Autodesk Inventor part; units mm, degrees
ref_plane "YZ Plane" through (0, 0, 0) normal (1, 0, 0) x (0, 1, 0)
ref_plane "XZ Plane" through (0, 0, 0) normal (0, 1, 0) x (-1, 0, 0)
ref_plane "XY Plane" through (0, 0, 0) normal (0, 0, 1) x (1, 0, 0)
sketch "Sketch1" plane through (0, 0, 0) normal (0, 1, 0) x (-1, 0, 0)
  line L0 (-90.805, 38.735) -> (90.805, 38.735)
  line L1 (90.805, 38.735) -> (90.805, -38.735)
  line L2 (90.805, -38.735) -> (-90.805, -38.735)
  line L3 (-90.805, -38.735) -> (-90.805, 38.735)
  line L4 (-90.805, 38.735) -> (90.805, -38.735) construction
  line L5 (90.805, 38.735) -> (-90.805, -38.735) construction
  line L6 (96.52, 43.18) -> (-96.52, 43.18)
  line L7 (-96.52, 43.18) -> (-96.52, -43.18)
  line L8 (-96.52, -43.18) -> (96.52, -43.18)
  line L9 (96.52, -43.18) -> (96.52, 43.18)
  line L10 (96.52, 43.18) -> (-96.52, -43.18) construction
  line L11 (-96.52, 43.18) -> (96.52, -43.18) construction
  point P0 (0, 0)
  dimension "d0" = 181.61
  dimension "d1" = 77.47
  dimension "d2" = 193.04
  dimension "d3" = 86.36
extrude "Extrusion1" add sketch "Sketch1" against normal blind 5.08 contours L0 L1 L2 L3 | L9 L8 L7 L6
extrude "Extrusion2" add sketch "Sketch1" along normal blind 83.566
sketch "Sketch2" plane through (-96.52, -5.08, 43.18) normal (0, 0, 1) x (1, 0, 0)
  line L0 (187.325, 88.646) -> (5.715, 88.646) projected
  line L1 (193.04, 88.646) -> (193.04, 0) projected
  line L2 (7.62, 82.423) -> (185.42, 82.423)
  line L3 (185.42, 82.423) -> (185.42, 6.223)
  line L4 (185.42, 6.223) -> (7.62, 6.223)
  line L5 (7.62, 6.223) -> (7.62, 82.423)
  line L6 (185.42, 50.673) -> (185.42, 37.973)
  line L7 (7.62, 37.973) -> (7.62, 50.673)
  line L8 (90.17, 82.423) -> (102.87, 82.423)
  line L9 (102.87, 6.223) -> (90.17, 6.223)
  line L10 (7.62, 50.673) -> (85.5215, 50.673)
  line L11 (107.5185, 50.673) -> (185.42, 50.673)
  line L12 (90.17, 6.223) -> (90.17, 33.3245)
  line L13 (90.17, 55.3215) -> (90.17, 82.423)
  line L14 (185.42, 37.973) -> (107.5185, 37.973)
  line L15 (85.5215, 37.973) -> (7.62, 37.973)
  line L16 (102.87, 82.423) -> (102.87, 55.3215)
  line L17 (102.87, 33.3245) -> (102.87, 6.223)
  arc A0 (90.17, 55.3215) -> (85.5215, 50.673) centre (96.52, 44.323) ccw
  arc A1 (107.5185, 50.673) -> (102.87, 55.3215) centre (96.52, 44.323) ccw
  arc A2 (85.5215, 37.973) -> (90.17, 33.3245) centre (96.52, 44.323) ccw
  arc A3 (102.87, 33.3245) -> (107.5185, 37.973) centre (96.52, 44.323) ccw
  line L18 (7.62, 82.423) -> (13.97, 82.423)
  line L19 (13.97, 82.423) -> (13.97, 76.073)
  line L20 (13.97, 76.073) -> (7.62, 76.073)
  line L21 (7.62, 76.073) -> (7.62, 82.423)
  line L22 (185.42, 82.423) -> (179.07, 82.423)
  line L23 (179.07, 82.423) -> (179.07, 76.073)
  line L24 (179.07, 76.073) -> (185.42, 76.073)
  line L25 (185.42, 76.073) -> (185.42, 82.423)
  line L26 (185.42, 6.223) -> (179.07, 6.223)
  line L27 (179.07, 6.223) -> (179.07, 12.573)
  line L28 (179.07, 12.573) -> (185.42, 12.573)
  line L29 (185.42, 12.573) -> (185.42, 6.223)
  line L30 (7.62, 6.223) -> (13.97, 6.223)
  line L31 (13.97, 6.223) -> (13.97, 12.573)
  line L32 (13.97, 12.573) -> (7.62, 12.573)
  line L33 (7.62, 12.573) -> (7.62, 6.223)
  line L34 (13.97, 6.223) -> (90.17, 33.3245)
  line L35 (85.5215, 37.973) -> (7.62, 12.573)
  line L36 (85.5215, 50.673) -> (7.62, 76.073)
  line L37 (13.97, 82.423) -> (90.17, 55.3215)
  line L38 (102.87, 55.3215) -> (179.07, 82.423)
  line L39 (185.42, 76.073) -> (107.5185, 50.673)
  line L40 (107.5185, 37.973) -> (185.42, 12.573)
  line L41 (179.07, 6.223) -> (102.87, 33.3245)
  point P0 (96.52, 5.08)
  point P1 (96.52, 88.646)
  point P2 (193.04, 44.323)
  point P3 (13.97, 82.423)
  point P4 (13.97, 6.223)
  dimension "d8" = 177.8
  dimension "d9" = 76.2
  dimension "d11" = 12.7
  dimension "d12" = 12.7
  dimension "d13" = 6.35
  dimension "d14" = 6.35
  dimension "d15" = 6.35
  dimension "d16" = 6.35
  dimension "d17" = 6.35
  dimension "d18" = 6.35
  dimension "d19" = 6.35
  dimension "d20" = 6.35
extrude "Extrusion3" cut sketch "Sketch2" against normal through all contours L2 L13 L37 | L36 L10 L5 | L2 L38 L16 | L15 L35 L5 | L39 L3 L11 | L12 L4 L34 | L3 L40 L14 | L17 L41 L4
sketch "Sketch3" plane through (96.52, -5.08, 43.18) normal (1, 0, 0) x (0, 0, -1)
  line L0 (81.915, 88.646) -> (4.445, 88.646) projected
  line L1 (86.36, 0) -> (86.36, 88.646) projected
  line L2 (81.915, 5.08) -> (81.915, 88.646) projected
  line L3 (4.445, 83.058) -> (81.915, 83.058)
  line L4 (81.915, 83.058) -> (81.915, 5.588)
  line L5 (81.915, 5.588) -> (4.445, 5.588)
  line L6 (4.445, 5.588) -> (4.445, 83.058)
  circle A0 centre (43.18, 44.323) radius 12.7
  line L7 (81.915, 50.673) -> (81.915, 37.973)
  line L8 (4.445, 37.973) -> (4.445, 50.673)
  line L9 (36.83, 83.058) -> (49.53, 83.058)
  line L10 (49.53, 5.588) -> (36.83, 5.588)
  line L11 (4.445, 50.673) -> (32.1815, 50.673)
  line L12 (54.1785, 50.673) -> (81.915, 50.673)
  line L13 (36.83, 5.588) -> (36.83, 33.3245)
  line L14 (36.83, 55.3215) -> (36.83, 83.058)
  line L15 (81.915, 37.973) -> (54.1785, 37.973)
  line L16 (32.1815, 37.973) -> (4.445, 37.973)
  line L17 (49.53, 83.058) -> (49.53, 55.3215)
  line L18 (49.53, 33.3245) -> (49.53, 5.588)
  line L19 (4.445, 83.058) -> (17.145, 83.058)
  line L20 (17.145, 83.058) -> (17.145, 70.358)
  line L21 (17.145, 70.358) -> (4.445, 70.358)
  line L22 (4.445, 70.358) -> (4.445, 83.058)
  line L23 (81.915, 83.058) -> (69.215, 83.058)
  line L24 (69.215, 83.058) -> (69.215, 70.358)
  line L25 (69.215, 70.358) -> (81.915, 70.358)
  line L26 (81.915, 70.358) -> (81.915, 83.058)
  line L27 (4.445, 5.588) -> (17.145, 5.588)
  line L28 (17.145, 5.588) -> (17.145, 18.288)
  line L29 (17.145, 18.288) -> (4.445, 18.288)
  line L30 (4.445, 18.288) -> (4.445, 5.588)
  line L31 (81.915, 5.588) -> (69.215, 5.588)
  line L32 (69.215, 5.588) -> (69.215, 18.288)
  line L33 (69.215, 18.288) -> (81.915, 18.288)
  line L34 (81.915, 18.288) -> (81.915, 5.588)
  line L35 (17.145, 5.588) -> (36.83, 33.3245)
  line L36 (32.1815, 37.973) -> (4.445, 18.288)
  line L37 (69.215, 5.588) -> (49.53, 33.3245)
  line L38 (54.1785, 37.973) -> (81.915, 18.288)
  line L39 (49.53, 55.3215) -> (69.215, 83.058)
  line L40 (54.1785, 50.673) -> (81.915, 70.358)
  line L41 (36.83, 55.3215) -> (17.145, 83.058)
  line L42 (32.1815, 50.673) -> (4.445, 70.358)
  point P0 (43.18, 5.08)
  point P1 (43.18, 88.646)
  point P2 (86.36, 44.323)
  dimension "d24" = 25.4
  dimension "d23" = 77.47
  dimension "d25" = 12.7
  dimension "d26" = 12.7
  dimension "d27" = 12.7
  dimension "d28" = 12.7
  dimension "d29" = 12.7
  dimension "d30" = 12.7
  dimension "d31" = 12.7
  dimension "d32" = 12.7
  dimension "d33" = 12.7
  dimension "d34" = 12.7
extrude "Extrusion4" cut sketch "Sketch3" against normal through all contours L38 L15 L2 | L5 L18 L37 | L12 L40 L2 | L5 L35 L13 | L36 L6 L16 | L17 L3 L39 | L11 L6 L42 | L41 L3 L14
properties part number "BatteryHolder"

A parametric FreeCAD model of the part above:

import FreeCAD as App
import Part
import Sketcher
from FreeCAD import Vector
Q = App.Units.Quantity

doc = App.newDocument("Part")
body = doc.addObject("PartDesign::Body", "Body")

# Sketch on XZ plane
sketch1 = body.newObject("Sketcher::SketchObject", "Sketch")
sketch1.AttachmentSupport = (doc.getObject("XZ_Plane"), [""])
sketch1.MapMode = "FlatFace"
sketch1.addGeometry(Part.LineSegment(Vector(-96.52, -43.18, 0), Vector(-96.52, 43.18, 0)), False)
sketch1.addGeometry(Part.LineSegment(Vector(-96.52, 43.18, 0), Vector(96.52, 43.18, 0)), False)
sketch1.addGeometry(Part.LineSegment(Vector(96.52, 43.18, 0), Vector(96.52, -43.18, 0)), False)
sketch1.addGeometry(Part.LineSegment(Vector(96.52, -43.18, 0), Vector(-96.52, -43.18, 0)), False)
sketch1.addConstraint(Sketcher.Constraint("Coincident", 0, 2, 1, 1))
sketch1.addConstraint(Sketcher.Constraint("Coincident", 1, 2, 2, 1))
sketch1.addConstraint(Sketcher.Constraint("Coincident", 2, 2, 3, 1))
sketch1.addConstraint(Sketcher.Constraint("Coincident", 3, 2, 0, 1))
sketch1.addConstraint(Sketcher.Constraint("Vertical", 0))
sketch1.addConstraint(Sketcher.Constraint("Horizontal", 1))
sketch1.addConstraint(Sketcher.Constraint("Vertical", 2))
sketch1.addConstraint(Sketcher.Constraint("Horizontal", 3))
sketch1.addConstraint(Sketcher.Constraint("Symmetric", 0, 2, 2, 2, -1, 1))
sketch1.addConstraint(Sketcher.Constraint("DistanceX", 1, 1, 1, 2, Q("7.6 in")))
sketch1.addConstraint(Sketcher.Constraint("DistanceY", 0, 1, 0, 2, Q("3.4 in")))
pad1 = body.newObject("PartDesign::Pad", "Pad")
pad1.Profile = sketch1
pad1.Length = Q("0.2 in")

# Sketch on XZ plane
sketch2 = body.newObject("Sketcher::SketchObject", "Sketch001")
sketch2.AttachmentSupport = (doc.getObject("XZ_Plane"), [""])
sketch2.MapMode = "FlatFace"
sketch2.addGeometry(Part.LineSegment(Vector(-96.52, -43.18, 0), Vector(-96.52, 43.18, 0)), False)
sketch2.addGeometry(Part.LineSegment(Vector(-96.52, 43.18, 0), Vector(96.52, 43.18, 0)), False)
sketch2.addGeometry(Part.LineSegment(Vector(96.52, 43.18, 0), Vector(96.52, -43.18, 0)), False)
sketch2.addGeometry(Part.LineSegment(Vector(96.52, -43.18, 0), Vector(-96.52, -43.18, 0)), False)
sketch2.addGeometry(Part.LineSegment(Vector(90.805, -38.735, 0), Vector(90.805, 38.735, 0)), False)
sketch2.addGeometry(Part.LineSegment(Vector(90.805, 38.735, 0), Vector(-90.805, 38.735, 0)), False)
sketch2.addGeometry(Part.LineSegment(Vector(-90.805, 38.735, 0), Vector(-90.805, -38.735, 0)), False)
sketch2.addGeometry(Part.LineSegment(Vector(-90.805, -38.735, 0), Vector(90.805, -38.735, 0)), False)
sketch2.addConstraint(Sketcher.Constraint("Coincident", 0, 2, 1, 1))
sketch2.addConstraint(Sketcher.Constraint("Coincident", 1, 2, 2, 1))
sketch2.addConstraint(Sketcher.Constraint("Coincident", 2, 2, 3, 1))
sketch2.addConstraint(Sketcher.Constraint("Coincident", 3, 2, 0, 1))
sketch2.addConstraint(Sketcher.Constraint("Coincident", 4, 2, 5, 1))
sketch2.addConstraint(Sketcher.Constraint("Coincident", 5, 2, 6, 1))
sketch2.addConstraint(Sketcher.Constraint("Coincident", 6, 2, 7, 1))
sketch2.addConstraint(Sketcher.Constraint("Coincident", 7, 2, 4, 1))
sketch2.addConstraint(Sketcher.Constraint("Vertical", 0))
sketch2.addConstraint(Sketcher.Constraint("Horizontal", 1))
sketch2.addConstraint(Sketcher.Constraint("Vertical", 2))
sketch2.addConstraint(Sketcher.Constraint("Horizontal", 3))
sketch2.addConstraint(Sketcher.Constraint("Vertical", 4))
sketch2.addConstraint(Sketcher.Constraint("Horizontal", 5))
sketch2.addConstraint(Sketcher.Constraint("Vertical", 6))
sketch2.addConstraint(Sketcher.Constraint("Horizontal", 7))
sketch2.addConstraint(Sketcher.Constraint("Symmetric", 0, 2, 2, 2, -1, 1))
sketch2.addConstraint(Sketcher.Constraint("Symmetric", 4, 2, 6, 2, -1, 1))
sketch2.addConstraint(Sketcher.Constraint("DistanceX", 1, 1, 1, 2, Q("7.6 in")))
sketch2.addConstraint(Sketcher.Constraint("DistanceY", 0, 1, 0, 2, Q("3.4 in")))
sketch2.addConstraint(Sketcher.Constraint("DistanceX", 5, 2, 5, 1, Q("7.15 in")))
sketch2.addConstraint(Sketcher.Constraint("DistanceY", 4, 1, 4, 2, Q("3.05 in")))
pad2 = body.newObject("PartDesign::Pad", "Pad001")
pad2.Profile = sketch2
pad2.Length = Q("3.29 in")
pad2.Reversed = True

# Sketch on XY plane
sketch3 = body.newObject("Sketcher::SketchObject", "Sketch002")
sketch3.AttachmentSupport = (doc.getObject("XY_Plane"), [""])
sketch3.MapMode = "FlatFace"
sketch3.AttachmentOffset = App.Placement(Vector(0, 0, 1.7 * 25.4), App.Rotation())
sketch3.addGeometry(Part.LineSegment(Vector(-6.35, 77.343, 0), Vector(-82.55, 77.343, 0)), False)
sketch3.addGeometry(Part.LineSegment(Vector(-82.55, 77.343, 0), Vector(-6.35, 50.2415, 0)), False)
sketch3.addGeometry(Part.LineSegment(Vector(-6.35, 50.2415, 0), Vector(-6.35, 77.343, 0)), False)
sketch3.addGeometry(Part.LineSegment(Vector(-10.9985, 45.593, 0), Vector(-88.9, 70.993, 0)), False)
sketch3.addGeometry(Part.LineSegment(Vector(-88.9, 70.993, 0), Vector(-88.9, 45.593, 0)), False)
sketch3.addGeometry(Part.LineSegment(Vector(-88.9, 45.593, 0), Vector(-10.9985, 45.593, 0)), False)
sketch3.addGeometry(Part.LineSegment(Vector(82.55, 77.343, 0), Vector(6.35, 77.343, 0)), False)
sketch3.addGeometry(Part.LineSegment(Vector(6.35, 77.343, 0), Vector(6.35, 50.2415, 0)), False)
sketch3.addGeometry(Part.LineSegment(Vector(6.35, 50.2415, 0), Vector(82.55, 77.343, 0)), False)
sketch3.addGeometry(Part.LineSegment(Vector(-10.9985, 32.893, 0), Vector(-88.9, 32.893, 0)), False)
sketch3.addGeometry(Part.LineSegment(Vector(-88.9, 32.893, 0), Vector(-88.9, 7.493, 0)), False)
sketch3.addGeometry(Part.LineSegment(Vector(-88.9, 7.493, 0), Vector(-10.9985, 32.893, 0)), False)
sketch3.addGeometry(Part.LineSegment(Vector(88.9, 70.993, 0), Vector(10.9985, 45.593, 0)), False)
sketch3.addGeometry(Part.LineSegment(Vector(10.9985, 45.593, 0), Vector(88.9, 45.593, 0)), False)
sketch3.addGeometry(Part.LineSegment(Vector(88.9, 45.593, 0), Vector(88.9, 70.993, 0)), False)
sketch3.addGeometry(Part.LineSegment(Vector(-6.35, 1.143, 0), Vector(-6.35, 28.2445, 0)), False)
sketch3.addGeometry(Part.LineSegment(Vector(-6.35, 28.2445, 0), Vector(-82.55, 1.143, 0)), False)
sketch3.addGeometry(Part.LineSegment(Vector(-82.55, 1.143, 0), Vector(-6.35, 1.143, 0)), False)
sketch3.addGeometry(Part.LineSegment(Vector(88.9, 7.493, 0), Vector(88.9, 32.893, 0)), False)
sketch3.addGeometry(Part.LineSegment(Vector(88.9, 32.893, 0), Vector(10.9985, 32.893, 0)), False)
sketch3.addGeometry(Part.LineSegment(Vector(10.9985, 32.893, 0), Vector(88.9, 7.493, 0)), False)
sketch3.addGeometry(Part.LineSegment(Vector(6.35, 28.2445, 0), Vector(6.35, 1.143, 0)), False)
sketch3.addGeometry(Part.LineSegment(Vector(6.35, 1.143, 0), Vector(82.55, 1.143, 0)), False)
sketch3.addGeometry(Part.LineSegment(Vector(82.55, 1.143, 0), Vector(6.35, 28.2445, 0)), False)
sketch3.addConstraint(Sketcher.Constraint("Coincident", 0, 2, 1, 1))
sketch3.addConstraint(Sketcher.Constraint("Coincident", 1, 2, 2, 1))
sketch3.addConstraint(Sketcher.Constraint("Coincident", 2, 2, 0, 1))
sketch3.addConstraint(Sketcher.Constraint("Coincident", 3, 2, 4, 1))
sketch3.addConstraint(Sketcher.Constraint("Coincident", 4, 2, 5, 1))
sketch3.addConstraint(Sketcher.Constraint("Coincident", 5, 2, 3, 1))
sketch3.addConstraint(Sketcher.Constraint("Coincident", 6, 2, 7, 1))
sketch3.addConstraint(Sketcher.Constraint("Coincident", 7, 2, 8, 1))
sketch3.addConstraint(Sketcher.Constraint("Coincident", 8, 2, 6, 1))
sketch3.addConstraint(Sketcher.Constraint("Coincident", 9, 2, 10, 1))
sketch3.addConstraint(Sketcher.Constraint("Coincident", 10, 2, 11, 1))
sketch3.addConstraint(Sketcher.Constraint("Coincident", 11, 2, 9, 1))
sketch3.addConstraint(Sketcher.Constraint("Coincident", 12, 2, 13, 1))
sketch3.addConstraint(Sketcher.Constraint("Coincident", 13, 2, 14, 1))
sketch3.addConstraint(Sketcher.Constraint("Coincident", 14, 2, 12, 1))
sketch3.addConstraint(Sketcher.Constraint("Coincident", 15, 2, 16, 1))
sketch3.addConstraint(Sketcher.Constraint("Coincident", 16, 2, 17, 1))
sketch3.addConstraint(Sketcher.Constraint("Coincident", 17, 2, 15, 1))
sketch3.addConstraint(Sketcher.Constraint("Coincident", 18, 2, 19, 1))
sketch3.addConstraint(Sketcher.Constraint("Coincident", 19, 2, 20, 1))
sketch3.addConstraint(Sketcher.Constraint("Coincident", 20, 2, 18, 1))
sketch3.addConstraint(Sketcher.Constraint("Coincident", 21, 2, 22, 1))
sketch3.addConstraint(Sketcher.Constraint("Coincident", 22, 2, 23, 1))
sketch3.addConstraint(Sketcher.Constraint("Coincident", 23, 2, 21, 1))
sketch3.addConstraint(Sketcher.Constraint("Horizontal", 0))
sketch3.addConstraint(Sketcher.Constraint("Vertical", 2))
sketch3.addConstraint(Sketcher.Constraint("Vertical", 4))
sketch3.addConstraint(Sketcher.Constraint("Horizontal", 5))
sketch3.addConstraint(Sketcher.Constraint("Horizontal", 6))
sketch3.addConstraint(Sketcher.Constraint("Vertical", 7))
sketch3.addConstraint(Sketcher.Constraint("Horizontal", 9))
sketch3.addConstraint(Sketcher.Constraint("Vertical", 10))
sketch3.addConstraint(Sketcher.Constraint("Horizontal", 13))
sketch3.addConstraint(Sketcher.Constraint("Vertical", 14))
sketch3.addConstraint(Sketcher.Constraint("Vertical", 15))
sketch3.addConstraint(Sketcher.Constraint("Horizontal", 17))
sketch3.addConstraint(Sketcher.Constraint("Vertical", 18))
sketch3.addConstraint(Sketcher.Constraint("Horizontal", 19))
sketch3.addConstraint(Sketcher.Constraint("Vertical", 21))
sketch3.addConstraint(Sketcher.Constraint("Horizontal", 22))
sketch3.addConstraint(Sketcher.Constraint("Symmetric", 2, 2, 6, 2, -2))
sketch3.addConstraint(Sketcher.Constraint("Symmetric", 5, 2, 12, 2, -2))
sketch3.addConstraint(Sketcher.Constraint("Symmetric", 3, 2, 14, 2, -2))
sketch3.addConstraint(Sketcher.Constraint("Symmetric", 9, 2, 18, 2, -2))
sketch3.addConstraint(Sketcher.Constraint("Symmetric", 17, 2, 21, 2, -2))
sketch3.addConstraint(Sketcher.Constraint("Parallel", 11, 12))
sketch3.addConstraint(Sketcher.Constraint("Parallel", 8, 16))
sketch3.addConstraint(Sketcher.Constraint("Parallel", 3, 20))
sketch3.addConstraint(Sketcher.Constraint("Parallel", 1, 23))
sketch3.addConstraint(Sketcher.Constraint("Horizontal", 1, 2, 7, 2))
sketch3.addConstraint(Sketcher.Constraint("Horizontal", 10, 2, 20, 2))
sketch3.addConstraint(Sketcher.Constraint("Horizontal", 15, 2, 23, 2))
sketch3.addConstraint(Sketcher.Constraint("Vertical", 4, 2, 9, 2))
sketch3.addConstraint(Sketcher.Constraint("Vertical", 5, 2, 11, 2))
sketch3.addConstraint(Sketcher.Constraint("Vertical", 2, 2, 15, 2))
sketch3.addConstraint(Sketcher.Constraint("Vertical", 0, 2, 16, 2))
sketch3.addConstraint(Sketcher.Constraint("Vertical", 8, 2, 22, 2))
sketch3.addConstraint(Sketcher.Constraint("DistanceX", 0, 2, 0, 1, Q("3 in")))
sketch3.addConstraint(Sketcher.Constraint("DistanceY", 16, 2, 0, 2, Q("3 in")))
sketch3.addConstraint(Sketcher.Constraint("DistanceX", 2, 2, 6, 2, Q("0.5 in")))
sketch3.addConstraint(Sketcher.Constraint("DistanceY", 9, 2, 4, 2, Q("0.5 in")))
sketch3.addConstraint(Sketcher.Constraint("DistanceY", 4, 2, 4, 1, Q("1 in")))
sketch3.addConstraint(Sketcher.Constraint("DistanceX", 3, 2, 0, 2, Q("0.25 in")))
sketch3.addConstraint(Sketcher.Constraint("DistanceY", 3, 2, 0, 2, Q("0.25 in")))
sketch3.addConstraint(Sketcher.Constraint("DistanceX", 5, 1, 5, 2, Q("3.067 in")))
sketch3.addConstraint(Sketcher.Constraint("DistanceY", 2, 1, 2, 2, Q("1.067 in")))
sketch3.addConstraint(Sketcher.Constraint("DistanceY", -1, 1, 0, 2, Q("3.045 in")))
pocket1 = body.newObject("PartDesign::Pocket", "Pocket")
pocket1.Profile = sketch3
pocket1.Type = "ThroughAll"

# Sketch on YZ plane
sketch4 = body.newObject("Sketcher::SketchObject", "Sketch003")
sketch4.AttachmentSupport = (doc.getObject("YZ_Plane"), [""])
sketch4.MapMode = "FlatFace"
sketch4.AttachmentOffset = App.Placement(Vector(0, 0, 3.8 * 25.4), App.Rotation())
sketch4.addGeometry(Part.LineSegment(Vector(32.893, -10.9985, 0), Vector(13.208, -38.735, 0)), False)
sketch4.addGeometry(Part.LineSegment(Vector(13.208, -38.735, 0), Vector(32.893, -38.735, 0)), False)
sketch4.addGeometry(Part.LineSegment(Vector(32.893, -38.735, 0), Vector(32.893, -10.9985, 0)), False)
sketch4.addGeometry(Part.LineSegment(Vector(0.508, -6.35, 0), Vector(0.508, -26.035, 0)), False)
sketch4.addGeometry(Part.LineSegment(Vector(0.508, -26.035, 0), Vector(28.2445, -6.35, 0)), False)
sketch4.addGeometry(Part.LineSegment(Vector(28.2445, -6.35, 0), Vector(0.508, -6.35, 0)), False)
sketch4.addGeometry(Part.LineSegment(Vector(45.593, -10.9985, 0), Vector(45.593, -38.735, 0)), False)
sketch4.addGeometry(Part.LineSegment(Vector(45.593, -38.735, 0), Vector(65.278, -38.735, 0)), False)
sketch4.addGeometry(Part.LineSegment(Vector(65.278, -38.735, 0), Vector(45.593, -10.9985, 0)), False)
sketch4.addGeometry(Part.LineSegment(Vector(0.508, 26.035, 0), Vector(0.508, 6.35, 0)), False)
sketch4.addGeometry(Part.LineSegment(Vector(0.508, 6.35, 0), Vector(28.2445, 6.35, 0)), False)
sketch4.addGeometry(Part.LineSegment(Vector(28.2445, 6.35, 0), Vector(0.508, 26.035, 0)), False)
sketch4.addGeometry(Part.LineSegment(Vector(13.208, 38.735, 0), Vector(32.893, 10.9985, 0)), False)
sketch4.addGeometry(Part.LineSegment(Vector(32.893, 10.9985, 0), Vector(32.893, 38.735, 0)), False)
sketch4.addGeometry(Part.LineSegment(Vector(32.893, 38.735, 0), Vector(13.208, 38.735, 0)), False)
sketch4.addGeometry(Part.LineSegment(Vector(77.978, -6.35, 0), Vector(50.2415, -6.35, 0)), False)
sketch4.addGeometry(Part.LineSegment(Vector(50.2415, -6.35, 0), Vector(77.978, -26.035, 0)), False)
sketch4.addGeometry(Part.LineSegment(Vector(77.978, -26.035, 0), Vector(77.978, -6.35, 0)), False)
sketch4.addGeometry(Part.LineSegment(Vector(45.593, 38.735, 0), Vector(45.593, 10.9985, 0)), False)
sketch4.addGeometry(Part.LineSegment(Vector(45.593, 10.9985, 0), Vector(65.278, 38.735, 0)), False)
sketch4.addGeometry(Part.LineSegment(Vector(65.278, 38.735, 0), Vector(45.593, 38.735, 0)), False)
sketch4.addGeometry(Part.LineSegment(Vector(77.978, 26.035, 0), Vector(50.2415, 6.35, 0)), False)
sketch4.addGeometry(Part.LineSegment(Vector(50.2415, 6.35, 0), Vector(77.978, 6.35, 0)), False)
sketch4.addGeometry(Part.LineSegment(Vector(77.978, 6.35, 0), Vector(77.978, 26.035, 0)), False)
sketch4.addConstraint(Sketcher.Constraint("Coincident", 0, 2, 1, 1))
sketch4.addConstraint(Sketcher.Constraint("Coincident", 1, 2, 2, 1))
sketch4.addConstraint(Sketcher.Constraint("Coincident", 2, 2, 0, 1))
sketch4.addConstraint(Sketcher.Constraint("Coincident", 3, 2, 4, 1))
sketch4.addConstraint(Sketcher.Constraint("Coincident", 4, 2, 5, 1))
sketch4.addConstraint(Sketcher.Constraint("Coincident", 5, 2, 3, 1))
sketch4.addConstraint(Sketcher.Constraint("Coincident", 6, 2, 7, 1))
sketch4.addConstraint(Sketcher.Constraint("Coincident", 7, 2, 8, 1))
sketch4.addConstraint(Sketcher.Constraint("Coincident", 8, 2, 6, 1))
sketch4.addConstraint(Sketcher.Constraint("Coincident", 9, 2, 10, 1))
sketch4.addConstraint(Sketcher.Constraint("Coincident", 10, 2, 11, 1))
sketch4.addConstraint(Sketcher.Constraint("Coincident", 11, 2, 9, 1))
sketch4.addConstraint(Sketcher.Constraint("Coincident", 12, 2, 13, 1))
sketch4.addConstraint(Sketcher.Constraint("Coincident", 13, 2, 14, 1))
sketch4.addConstraint(Sketcher.Constraint("Coincident", 14, 2, 12, 1))
sketch4.addConstraint(Sketcher.Constraint("Coincident", 15, 2, 16, 1))
sketch4.addConstraint(Sketcher.Constraint("Coincident", 16, 2, 17, 1))
sketch4.addConstraint(Sketcher.Constraint("Coincident", 17, 2, 15, 1))
sketch4.addConstraint(Sketcher.Constraint("Coincident", 18, 2, 19, 1))
sketch4.addConstraint(Sketcher.Constraint("Coincident", 19, 2, 20, 1))
sketch4.addConstraint(Sketcher.Constraint("Coincident", 20, 2, 18, 1))
sketch4.addConstraint(Sketcher.Constraint("Coincident", 21, 2, 22, 1))
sketch4.addConstraint(Sketcher.Constraint("Coincident", 22, 2, 23, 1))
sketch4.addConstraint(Sketcher.Constraint("Coincident", 23, 2, 21, 1))
sketch4.addConstraint(Sketcher.Constraint("Horizontal", 1))
sketch4.addConstraint(Sketcher.Constraint("Vertical", 2))
sketch4.addConstraint(Sketcher.Constraint("Vertical", 3))
sketch4.addConstraint(Sketcher.Constraint("Horizontal", 5))
sketch4.addConstraint(Sketcher.Constraint("Vertical", 6))
sketch4.addConstraint(Sketcher.Constraint("Horizontal", 7))
sketch4.addConstraint(Sketcher.Constraint("Vertical", 9))
sketch4.addConstraint(Sketcher.Constraint("Horizontal", 10))
sketch4.addConstraint(Sketcher.Constraint("Vertical", 13))
sketch4.addConstraint(Sketcher.Constraint("Horizontal", 14))
sketch4.addConstraint(Sketcher.Constraint("Horizontal", 15))
sketch4.addConstraint(Sketcher.Constraint("Vertical", 17))
sketch4.addConstraint(Sketcher.Constraint("Vertical", 18))
sketch4.addConstraint(Sketcher.Constraint("Horizontal", 20))
sketch4.addConstraint(Sketcher.Constraint("Horizontal", 22))
sketch4.addConstraint(Sketcher.Constraint("Vertical", 23))
sketch4.addConstraint(Sketcher.Constraint("Symmetric", 5, 2, 9, 2, -1))
sketch4.addConstraint(Sketcher.Constraint("Symmetric", 2, 2, 12, 2, -1))
sketch4.addConstraint(Sketcher.Constraint("Symmetric", 0, 2, 14, 2, -1))
sketch4.addConstraint(Sketcher.Constraint("Symmetric", 8, 2, 18, 2, -1))
sketch4.addConstraint(Sketcher.Constraint("Symmetric", 7, 2, 19, 2, -1))
sketch4.addConstraint(Sketcher.Constraint("Symmetric", 15, 2, 21, 2, -1))
sketch4.addConstraint(Sketcher.Constraint("Symmetric", 16, 2, 23, 2, -1))
sketch4.addConstraint(Sketcher.Constraint("Perpendicular", 4, 8))
sketch4.addConstraint(Sketcher.Constraint("Perpendicular", 0, 11))
sketch4.addConstraint(Sketcher.Constraint("Parallel", 8, 12))
sketch4.addConstraint(Sketcher.Constraint("Parallel", 11, 16))
sketch4.addConstraint(Sketcher.Constraint("Horizontal", 1, 2, 6, 2))
sketch4.addConstraint(Sketcher.Constraint("Horizontal", 2, 2, 8, 2))
sketch4.addConstraint(Sketcher.Constraint("Horizontal", 5, 2, 15, 2))
sketch4.addConstraint(Sketcher.Constraint("Horizontal", 3, 2, 16, 2))
sketch4.addConstraint(Sketcher.Constraint("Horizontal", 11, 2, 23, 2))
sketch4.addConstraint(Sketcher.Constraint("Equal", 22, 2))
sketch4.addConstraint(Sketcher.Constraint("DistanceX", 3, 2, 0, 2, Q("0.5 in")))
sketch4.addConstraint(Sketcher.Constraint("DistanceY", 0, 2, 3, 2, Q("0.5 in")))
sketch4.addConstraint(Sketcher.Constraint("DistanceX", 1, 2, 6, 2, Q("0.5 in")))
sketch4.addConstraint(Sketcher.Constraint("DistanceY", 5, 2, 9, 2, Q("0.5 in")))
sketch4.addConstraint(Sketcher.Constraint("DistanceX", 7, 2, 16, 2, Q("0.5 in")))
sketch4.addConstraint(Sketcher.Constraint("DistanceX", 1, 1, 1, 2, Q("0.775 in")))
sketch4.addConstraint(Sketcher.Constraint("DistanceX", 5, 2, 5, 1, Q("1.092 in")))
sketch4.addConstraint(Sketcher.Constraint("DistanceX", -1, 1, 0, 2, Q("0.52 in")))
pocket2 = body.newObject("PartDesign::Pocket", "Pocket001")
pocket2.Profile = sketch4
pocket2.Type = "ThroughAll"

doc.recompute()
